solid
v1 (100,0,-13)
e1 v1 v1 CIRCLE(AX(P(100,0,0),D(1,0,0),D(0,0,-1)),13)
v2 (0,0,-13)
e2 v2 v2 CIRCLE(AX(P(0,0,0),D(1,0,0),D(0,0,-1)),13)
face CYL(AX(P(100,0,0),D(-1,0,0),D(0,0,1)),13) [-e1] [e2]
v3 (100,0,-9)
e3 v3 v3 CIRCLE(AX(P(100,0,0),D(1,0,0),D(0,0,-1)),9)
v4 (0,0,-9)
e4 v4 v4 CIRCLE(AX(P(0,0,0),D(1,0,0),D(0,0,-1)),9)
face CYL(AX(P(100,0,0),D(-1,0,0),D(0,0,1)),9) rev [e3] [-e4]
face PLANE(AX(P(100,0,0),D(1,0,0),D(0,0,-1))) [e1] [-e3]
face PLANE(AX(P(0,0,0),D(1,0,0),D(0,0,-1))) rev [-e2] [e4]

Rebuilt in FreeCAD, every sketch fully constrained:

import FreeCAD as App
import Part
import Sketcher

V = App.Vector

doc = App.newDocument("Part")
body = doc.addObject("PartDesign::Body", "Body")

# Sketch on YZ plane
sketch1 = doc.addObject("Sketcher::SketchObject", "Sketch")
body.addObject(sketch1)
sketch1.AttachmentSupport = (doc.YZ_Plane, [""])
sketch1.MapMode = "FlatFace"
sketch1.addGeometry([
    Part.Circle(V(0, 0, 0), V(0, 0, 1), 13),
    Part.Circle(V(0, 0, 0), V(0, 0, 1), 9),
], False)
sketch1.addConstraint([
    Sketcher.Constraint("Coincident", 0, 3, -1, 1),
    Sketcher.Constraint("Coincident", 1, 3, -1, 1),
    Sketcher.Constraint("Diameter", 0, 26.0),
    Sketcher.Constraint("Diameter", 1, 18.0),
])
pad1 = doc.addObject("PartDesign::Pad", "Pad")
body.addObject(pad1)
pad1.Profile = sketch1
pad1.Length = 100

doc.recompute()
